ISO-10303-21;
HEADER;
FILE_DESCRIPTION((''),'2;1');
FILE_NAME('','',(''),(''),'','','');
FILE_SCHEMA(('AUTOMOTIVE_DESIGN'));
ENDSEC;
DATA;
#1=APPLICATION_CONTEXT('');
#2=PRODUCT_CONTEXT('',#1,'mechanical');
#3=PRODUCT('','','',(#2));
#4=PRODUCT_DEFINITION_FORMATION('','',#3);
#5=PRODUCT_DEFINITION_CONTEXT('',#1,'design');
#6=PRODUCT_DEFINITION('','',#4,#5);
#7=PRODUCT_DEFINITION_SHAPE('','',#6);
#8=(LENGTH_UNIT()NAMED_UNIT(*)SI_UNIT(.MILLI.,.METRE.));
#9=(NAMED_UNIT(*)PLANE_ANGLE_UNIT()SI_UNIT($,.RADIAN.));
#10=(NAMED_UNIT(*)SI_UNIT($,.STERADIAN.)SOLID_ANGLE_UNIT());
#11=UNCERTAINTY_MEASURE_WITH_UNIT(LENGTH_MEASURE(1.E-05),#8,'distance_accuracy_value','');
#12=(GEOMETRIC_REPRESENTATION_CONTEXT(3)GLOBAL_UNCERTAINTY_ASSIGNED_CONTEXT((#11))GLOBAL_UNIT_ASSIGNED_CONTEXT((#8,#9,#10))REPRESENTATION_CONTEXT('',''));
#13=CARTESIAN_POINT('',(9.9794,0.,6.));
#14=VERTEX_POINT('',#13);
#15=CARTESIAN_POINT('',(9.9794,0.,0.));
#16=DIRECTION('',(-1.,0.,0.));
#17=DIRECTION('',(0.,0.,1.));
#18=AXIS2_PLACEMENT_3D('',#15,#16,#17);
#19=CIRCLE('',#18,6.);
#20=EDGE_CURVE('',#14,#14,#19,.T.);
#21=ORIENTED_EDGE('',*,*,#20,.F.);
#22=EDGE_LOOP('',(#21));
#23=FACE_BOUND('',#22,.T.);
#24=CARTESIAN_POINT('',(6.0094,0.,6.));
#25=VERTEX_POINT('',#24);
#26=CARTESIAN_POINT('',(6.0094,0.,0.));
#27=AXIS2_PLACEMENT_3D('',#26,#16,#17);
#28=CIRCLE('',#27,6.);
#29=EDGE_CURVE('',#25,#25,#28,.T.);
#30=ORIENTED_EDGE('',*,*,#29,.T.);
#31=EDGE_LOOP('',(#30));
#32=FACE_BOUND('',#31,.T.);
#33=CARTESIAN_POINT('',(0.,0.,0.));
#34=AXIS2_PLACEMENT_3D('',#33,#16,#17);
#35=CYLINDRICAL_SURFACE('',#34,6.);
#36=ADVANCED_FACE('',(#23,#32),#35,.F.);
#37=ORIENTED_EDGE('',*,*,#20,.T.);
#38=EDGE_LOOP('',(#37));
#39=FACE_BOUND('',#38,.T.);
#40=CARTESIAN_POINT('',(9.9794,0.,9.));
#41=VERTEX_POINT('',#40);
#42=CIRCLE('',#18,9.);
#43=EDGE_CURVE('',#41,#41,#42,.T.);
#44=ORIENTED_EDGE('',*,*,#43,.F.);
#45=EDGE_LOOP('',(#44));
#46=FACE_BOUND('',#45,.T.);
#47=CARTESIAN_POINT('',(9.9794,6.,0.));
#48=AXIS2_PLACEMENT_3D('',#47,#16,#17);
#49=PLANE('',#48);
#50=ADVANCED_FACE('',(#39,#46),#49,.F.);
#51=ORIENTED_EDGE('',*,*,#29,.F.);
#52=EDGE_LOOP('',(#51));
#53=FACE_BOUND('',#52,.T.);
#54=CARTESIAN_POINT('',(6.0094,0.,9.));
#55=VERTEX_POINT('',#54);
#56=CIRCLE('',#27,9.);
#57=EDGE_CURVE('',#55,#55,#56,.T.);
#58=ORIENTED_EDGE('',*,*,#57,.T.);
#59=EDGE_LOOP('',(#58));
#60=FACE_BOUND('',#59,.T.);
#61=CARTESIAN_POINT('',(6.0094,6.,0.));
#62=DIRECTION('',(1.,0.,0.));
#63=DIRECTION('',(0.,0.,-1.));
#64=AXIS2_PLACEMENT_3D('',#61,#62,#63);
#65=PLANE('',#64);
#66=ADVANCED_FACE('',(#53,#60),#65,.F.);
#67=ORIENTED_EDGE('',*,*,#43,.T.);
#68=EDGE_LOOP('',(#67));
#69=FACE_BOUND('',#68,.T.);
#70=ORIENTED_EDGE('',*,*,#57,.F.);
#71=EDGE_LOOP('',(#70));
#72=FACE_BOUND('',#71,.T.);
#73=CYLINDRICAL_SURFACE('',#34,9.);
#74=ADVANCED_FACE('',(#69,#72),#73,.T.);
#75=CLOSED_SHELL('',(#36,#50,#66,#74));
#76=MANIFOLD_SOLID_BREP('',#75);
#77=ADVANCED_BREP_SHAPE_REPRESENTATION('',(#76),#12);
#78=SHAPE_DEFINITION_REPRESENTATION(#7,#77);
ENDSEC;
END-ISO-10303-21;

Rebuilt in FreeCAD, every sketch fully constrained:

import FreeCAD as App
import Part
import Sketcher
from FreeCAD import Vector
Q = App.Units.Quantity

doc = App.newDocument("Part")
body = doc.addObject("PartDesign::Body", "Body")

# Sketch on XY plane
sketch1 = body.newObject("Sketcher::SketchObject", "Sketch")
sketch1.AttachmentSupport = (doc.getObject("XY_Plane"), [""])
sketch1.MapMode = "FlatFace"
sketch1.addGeometry([
    Part.LineSegment(Vector(6, 9, 0), Vector(6, 6, 0)),
    Part.LineSegment(Vector(6, 6, 0), Vector(10, 6, 0)),
    Part.LineSegment(Vector(10, 6, 0), Vector(10, 9, 0)),
    Part.LineSegment(Vector(10, 9, 0), Vector(6, 9, 0)),
], False)
sketch1.addConstraint([
    Sketcher.Constraint("Coincident", 0, 2, 1, 1),
    Sketcher.Constraint("Coincident", 1, 2, 2, 1),
    Sketcher.Constraint("Coincident", 2, 2, 3, 1),
    Sketcher.Constraint("Coincident", 3, 2, 0, 1),
    Sketcher.Constraint("Vertical", 0),
    Sketcher.Constraint("Horizontal", 1),
    Sketcher.Constraint("Vertical", 2),
    Sketcher.Constraint("Horizontal", 3),
    Sketcher.Constraint("DistanceY", 0, 2, 0, 1, Q("3 mm")),
    Sketcher.Constraint("DistanceY", -1, 1, 0, 2, Q("6 mm")),
    Sketcher.Constraint("DistanceX", 1, 1, 1, 2, Q("3.97 mm")),
    Sketcher.Constraint("DistanceX", -1, 1, 0, 2, Q("6.0094 mm")),
])
revolution = body.newObject("PartDesign::Revolution", "Revolution")
revolution.Profile = sketch1
revolution.ReferenceAxis = (sketch1, ["H_Axis"])
revolution.Angle = 360

doc.recompute()
